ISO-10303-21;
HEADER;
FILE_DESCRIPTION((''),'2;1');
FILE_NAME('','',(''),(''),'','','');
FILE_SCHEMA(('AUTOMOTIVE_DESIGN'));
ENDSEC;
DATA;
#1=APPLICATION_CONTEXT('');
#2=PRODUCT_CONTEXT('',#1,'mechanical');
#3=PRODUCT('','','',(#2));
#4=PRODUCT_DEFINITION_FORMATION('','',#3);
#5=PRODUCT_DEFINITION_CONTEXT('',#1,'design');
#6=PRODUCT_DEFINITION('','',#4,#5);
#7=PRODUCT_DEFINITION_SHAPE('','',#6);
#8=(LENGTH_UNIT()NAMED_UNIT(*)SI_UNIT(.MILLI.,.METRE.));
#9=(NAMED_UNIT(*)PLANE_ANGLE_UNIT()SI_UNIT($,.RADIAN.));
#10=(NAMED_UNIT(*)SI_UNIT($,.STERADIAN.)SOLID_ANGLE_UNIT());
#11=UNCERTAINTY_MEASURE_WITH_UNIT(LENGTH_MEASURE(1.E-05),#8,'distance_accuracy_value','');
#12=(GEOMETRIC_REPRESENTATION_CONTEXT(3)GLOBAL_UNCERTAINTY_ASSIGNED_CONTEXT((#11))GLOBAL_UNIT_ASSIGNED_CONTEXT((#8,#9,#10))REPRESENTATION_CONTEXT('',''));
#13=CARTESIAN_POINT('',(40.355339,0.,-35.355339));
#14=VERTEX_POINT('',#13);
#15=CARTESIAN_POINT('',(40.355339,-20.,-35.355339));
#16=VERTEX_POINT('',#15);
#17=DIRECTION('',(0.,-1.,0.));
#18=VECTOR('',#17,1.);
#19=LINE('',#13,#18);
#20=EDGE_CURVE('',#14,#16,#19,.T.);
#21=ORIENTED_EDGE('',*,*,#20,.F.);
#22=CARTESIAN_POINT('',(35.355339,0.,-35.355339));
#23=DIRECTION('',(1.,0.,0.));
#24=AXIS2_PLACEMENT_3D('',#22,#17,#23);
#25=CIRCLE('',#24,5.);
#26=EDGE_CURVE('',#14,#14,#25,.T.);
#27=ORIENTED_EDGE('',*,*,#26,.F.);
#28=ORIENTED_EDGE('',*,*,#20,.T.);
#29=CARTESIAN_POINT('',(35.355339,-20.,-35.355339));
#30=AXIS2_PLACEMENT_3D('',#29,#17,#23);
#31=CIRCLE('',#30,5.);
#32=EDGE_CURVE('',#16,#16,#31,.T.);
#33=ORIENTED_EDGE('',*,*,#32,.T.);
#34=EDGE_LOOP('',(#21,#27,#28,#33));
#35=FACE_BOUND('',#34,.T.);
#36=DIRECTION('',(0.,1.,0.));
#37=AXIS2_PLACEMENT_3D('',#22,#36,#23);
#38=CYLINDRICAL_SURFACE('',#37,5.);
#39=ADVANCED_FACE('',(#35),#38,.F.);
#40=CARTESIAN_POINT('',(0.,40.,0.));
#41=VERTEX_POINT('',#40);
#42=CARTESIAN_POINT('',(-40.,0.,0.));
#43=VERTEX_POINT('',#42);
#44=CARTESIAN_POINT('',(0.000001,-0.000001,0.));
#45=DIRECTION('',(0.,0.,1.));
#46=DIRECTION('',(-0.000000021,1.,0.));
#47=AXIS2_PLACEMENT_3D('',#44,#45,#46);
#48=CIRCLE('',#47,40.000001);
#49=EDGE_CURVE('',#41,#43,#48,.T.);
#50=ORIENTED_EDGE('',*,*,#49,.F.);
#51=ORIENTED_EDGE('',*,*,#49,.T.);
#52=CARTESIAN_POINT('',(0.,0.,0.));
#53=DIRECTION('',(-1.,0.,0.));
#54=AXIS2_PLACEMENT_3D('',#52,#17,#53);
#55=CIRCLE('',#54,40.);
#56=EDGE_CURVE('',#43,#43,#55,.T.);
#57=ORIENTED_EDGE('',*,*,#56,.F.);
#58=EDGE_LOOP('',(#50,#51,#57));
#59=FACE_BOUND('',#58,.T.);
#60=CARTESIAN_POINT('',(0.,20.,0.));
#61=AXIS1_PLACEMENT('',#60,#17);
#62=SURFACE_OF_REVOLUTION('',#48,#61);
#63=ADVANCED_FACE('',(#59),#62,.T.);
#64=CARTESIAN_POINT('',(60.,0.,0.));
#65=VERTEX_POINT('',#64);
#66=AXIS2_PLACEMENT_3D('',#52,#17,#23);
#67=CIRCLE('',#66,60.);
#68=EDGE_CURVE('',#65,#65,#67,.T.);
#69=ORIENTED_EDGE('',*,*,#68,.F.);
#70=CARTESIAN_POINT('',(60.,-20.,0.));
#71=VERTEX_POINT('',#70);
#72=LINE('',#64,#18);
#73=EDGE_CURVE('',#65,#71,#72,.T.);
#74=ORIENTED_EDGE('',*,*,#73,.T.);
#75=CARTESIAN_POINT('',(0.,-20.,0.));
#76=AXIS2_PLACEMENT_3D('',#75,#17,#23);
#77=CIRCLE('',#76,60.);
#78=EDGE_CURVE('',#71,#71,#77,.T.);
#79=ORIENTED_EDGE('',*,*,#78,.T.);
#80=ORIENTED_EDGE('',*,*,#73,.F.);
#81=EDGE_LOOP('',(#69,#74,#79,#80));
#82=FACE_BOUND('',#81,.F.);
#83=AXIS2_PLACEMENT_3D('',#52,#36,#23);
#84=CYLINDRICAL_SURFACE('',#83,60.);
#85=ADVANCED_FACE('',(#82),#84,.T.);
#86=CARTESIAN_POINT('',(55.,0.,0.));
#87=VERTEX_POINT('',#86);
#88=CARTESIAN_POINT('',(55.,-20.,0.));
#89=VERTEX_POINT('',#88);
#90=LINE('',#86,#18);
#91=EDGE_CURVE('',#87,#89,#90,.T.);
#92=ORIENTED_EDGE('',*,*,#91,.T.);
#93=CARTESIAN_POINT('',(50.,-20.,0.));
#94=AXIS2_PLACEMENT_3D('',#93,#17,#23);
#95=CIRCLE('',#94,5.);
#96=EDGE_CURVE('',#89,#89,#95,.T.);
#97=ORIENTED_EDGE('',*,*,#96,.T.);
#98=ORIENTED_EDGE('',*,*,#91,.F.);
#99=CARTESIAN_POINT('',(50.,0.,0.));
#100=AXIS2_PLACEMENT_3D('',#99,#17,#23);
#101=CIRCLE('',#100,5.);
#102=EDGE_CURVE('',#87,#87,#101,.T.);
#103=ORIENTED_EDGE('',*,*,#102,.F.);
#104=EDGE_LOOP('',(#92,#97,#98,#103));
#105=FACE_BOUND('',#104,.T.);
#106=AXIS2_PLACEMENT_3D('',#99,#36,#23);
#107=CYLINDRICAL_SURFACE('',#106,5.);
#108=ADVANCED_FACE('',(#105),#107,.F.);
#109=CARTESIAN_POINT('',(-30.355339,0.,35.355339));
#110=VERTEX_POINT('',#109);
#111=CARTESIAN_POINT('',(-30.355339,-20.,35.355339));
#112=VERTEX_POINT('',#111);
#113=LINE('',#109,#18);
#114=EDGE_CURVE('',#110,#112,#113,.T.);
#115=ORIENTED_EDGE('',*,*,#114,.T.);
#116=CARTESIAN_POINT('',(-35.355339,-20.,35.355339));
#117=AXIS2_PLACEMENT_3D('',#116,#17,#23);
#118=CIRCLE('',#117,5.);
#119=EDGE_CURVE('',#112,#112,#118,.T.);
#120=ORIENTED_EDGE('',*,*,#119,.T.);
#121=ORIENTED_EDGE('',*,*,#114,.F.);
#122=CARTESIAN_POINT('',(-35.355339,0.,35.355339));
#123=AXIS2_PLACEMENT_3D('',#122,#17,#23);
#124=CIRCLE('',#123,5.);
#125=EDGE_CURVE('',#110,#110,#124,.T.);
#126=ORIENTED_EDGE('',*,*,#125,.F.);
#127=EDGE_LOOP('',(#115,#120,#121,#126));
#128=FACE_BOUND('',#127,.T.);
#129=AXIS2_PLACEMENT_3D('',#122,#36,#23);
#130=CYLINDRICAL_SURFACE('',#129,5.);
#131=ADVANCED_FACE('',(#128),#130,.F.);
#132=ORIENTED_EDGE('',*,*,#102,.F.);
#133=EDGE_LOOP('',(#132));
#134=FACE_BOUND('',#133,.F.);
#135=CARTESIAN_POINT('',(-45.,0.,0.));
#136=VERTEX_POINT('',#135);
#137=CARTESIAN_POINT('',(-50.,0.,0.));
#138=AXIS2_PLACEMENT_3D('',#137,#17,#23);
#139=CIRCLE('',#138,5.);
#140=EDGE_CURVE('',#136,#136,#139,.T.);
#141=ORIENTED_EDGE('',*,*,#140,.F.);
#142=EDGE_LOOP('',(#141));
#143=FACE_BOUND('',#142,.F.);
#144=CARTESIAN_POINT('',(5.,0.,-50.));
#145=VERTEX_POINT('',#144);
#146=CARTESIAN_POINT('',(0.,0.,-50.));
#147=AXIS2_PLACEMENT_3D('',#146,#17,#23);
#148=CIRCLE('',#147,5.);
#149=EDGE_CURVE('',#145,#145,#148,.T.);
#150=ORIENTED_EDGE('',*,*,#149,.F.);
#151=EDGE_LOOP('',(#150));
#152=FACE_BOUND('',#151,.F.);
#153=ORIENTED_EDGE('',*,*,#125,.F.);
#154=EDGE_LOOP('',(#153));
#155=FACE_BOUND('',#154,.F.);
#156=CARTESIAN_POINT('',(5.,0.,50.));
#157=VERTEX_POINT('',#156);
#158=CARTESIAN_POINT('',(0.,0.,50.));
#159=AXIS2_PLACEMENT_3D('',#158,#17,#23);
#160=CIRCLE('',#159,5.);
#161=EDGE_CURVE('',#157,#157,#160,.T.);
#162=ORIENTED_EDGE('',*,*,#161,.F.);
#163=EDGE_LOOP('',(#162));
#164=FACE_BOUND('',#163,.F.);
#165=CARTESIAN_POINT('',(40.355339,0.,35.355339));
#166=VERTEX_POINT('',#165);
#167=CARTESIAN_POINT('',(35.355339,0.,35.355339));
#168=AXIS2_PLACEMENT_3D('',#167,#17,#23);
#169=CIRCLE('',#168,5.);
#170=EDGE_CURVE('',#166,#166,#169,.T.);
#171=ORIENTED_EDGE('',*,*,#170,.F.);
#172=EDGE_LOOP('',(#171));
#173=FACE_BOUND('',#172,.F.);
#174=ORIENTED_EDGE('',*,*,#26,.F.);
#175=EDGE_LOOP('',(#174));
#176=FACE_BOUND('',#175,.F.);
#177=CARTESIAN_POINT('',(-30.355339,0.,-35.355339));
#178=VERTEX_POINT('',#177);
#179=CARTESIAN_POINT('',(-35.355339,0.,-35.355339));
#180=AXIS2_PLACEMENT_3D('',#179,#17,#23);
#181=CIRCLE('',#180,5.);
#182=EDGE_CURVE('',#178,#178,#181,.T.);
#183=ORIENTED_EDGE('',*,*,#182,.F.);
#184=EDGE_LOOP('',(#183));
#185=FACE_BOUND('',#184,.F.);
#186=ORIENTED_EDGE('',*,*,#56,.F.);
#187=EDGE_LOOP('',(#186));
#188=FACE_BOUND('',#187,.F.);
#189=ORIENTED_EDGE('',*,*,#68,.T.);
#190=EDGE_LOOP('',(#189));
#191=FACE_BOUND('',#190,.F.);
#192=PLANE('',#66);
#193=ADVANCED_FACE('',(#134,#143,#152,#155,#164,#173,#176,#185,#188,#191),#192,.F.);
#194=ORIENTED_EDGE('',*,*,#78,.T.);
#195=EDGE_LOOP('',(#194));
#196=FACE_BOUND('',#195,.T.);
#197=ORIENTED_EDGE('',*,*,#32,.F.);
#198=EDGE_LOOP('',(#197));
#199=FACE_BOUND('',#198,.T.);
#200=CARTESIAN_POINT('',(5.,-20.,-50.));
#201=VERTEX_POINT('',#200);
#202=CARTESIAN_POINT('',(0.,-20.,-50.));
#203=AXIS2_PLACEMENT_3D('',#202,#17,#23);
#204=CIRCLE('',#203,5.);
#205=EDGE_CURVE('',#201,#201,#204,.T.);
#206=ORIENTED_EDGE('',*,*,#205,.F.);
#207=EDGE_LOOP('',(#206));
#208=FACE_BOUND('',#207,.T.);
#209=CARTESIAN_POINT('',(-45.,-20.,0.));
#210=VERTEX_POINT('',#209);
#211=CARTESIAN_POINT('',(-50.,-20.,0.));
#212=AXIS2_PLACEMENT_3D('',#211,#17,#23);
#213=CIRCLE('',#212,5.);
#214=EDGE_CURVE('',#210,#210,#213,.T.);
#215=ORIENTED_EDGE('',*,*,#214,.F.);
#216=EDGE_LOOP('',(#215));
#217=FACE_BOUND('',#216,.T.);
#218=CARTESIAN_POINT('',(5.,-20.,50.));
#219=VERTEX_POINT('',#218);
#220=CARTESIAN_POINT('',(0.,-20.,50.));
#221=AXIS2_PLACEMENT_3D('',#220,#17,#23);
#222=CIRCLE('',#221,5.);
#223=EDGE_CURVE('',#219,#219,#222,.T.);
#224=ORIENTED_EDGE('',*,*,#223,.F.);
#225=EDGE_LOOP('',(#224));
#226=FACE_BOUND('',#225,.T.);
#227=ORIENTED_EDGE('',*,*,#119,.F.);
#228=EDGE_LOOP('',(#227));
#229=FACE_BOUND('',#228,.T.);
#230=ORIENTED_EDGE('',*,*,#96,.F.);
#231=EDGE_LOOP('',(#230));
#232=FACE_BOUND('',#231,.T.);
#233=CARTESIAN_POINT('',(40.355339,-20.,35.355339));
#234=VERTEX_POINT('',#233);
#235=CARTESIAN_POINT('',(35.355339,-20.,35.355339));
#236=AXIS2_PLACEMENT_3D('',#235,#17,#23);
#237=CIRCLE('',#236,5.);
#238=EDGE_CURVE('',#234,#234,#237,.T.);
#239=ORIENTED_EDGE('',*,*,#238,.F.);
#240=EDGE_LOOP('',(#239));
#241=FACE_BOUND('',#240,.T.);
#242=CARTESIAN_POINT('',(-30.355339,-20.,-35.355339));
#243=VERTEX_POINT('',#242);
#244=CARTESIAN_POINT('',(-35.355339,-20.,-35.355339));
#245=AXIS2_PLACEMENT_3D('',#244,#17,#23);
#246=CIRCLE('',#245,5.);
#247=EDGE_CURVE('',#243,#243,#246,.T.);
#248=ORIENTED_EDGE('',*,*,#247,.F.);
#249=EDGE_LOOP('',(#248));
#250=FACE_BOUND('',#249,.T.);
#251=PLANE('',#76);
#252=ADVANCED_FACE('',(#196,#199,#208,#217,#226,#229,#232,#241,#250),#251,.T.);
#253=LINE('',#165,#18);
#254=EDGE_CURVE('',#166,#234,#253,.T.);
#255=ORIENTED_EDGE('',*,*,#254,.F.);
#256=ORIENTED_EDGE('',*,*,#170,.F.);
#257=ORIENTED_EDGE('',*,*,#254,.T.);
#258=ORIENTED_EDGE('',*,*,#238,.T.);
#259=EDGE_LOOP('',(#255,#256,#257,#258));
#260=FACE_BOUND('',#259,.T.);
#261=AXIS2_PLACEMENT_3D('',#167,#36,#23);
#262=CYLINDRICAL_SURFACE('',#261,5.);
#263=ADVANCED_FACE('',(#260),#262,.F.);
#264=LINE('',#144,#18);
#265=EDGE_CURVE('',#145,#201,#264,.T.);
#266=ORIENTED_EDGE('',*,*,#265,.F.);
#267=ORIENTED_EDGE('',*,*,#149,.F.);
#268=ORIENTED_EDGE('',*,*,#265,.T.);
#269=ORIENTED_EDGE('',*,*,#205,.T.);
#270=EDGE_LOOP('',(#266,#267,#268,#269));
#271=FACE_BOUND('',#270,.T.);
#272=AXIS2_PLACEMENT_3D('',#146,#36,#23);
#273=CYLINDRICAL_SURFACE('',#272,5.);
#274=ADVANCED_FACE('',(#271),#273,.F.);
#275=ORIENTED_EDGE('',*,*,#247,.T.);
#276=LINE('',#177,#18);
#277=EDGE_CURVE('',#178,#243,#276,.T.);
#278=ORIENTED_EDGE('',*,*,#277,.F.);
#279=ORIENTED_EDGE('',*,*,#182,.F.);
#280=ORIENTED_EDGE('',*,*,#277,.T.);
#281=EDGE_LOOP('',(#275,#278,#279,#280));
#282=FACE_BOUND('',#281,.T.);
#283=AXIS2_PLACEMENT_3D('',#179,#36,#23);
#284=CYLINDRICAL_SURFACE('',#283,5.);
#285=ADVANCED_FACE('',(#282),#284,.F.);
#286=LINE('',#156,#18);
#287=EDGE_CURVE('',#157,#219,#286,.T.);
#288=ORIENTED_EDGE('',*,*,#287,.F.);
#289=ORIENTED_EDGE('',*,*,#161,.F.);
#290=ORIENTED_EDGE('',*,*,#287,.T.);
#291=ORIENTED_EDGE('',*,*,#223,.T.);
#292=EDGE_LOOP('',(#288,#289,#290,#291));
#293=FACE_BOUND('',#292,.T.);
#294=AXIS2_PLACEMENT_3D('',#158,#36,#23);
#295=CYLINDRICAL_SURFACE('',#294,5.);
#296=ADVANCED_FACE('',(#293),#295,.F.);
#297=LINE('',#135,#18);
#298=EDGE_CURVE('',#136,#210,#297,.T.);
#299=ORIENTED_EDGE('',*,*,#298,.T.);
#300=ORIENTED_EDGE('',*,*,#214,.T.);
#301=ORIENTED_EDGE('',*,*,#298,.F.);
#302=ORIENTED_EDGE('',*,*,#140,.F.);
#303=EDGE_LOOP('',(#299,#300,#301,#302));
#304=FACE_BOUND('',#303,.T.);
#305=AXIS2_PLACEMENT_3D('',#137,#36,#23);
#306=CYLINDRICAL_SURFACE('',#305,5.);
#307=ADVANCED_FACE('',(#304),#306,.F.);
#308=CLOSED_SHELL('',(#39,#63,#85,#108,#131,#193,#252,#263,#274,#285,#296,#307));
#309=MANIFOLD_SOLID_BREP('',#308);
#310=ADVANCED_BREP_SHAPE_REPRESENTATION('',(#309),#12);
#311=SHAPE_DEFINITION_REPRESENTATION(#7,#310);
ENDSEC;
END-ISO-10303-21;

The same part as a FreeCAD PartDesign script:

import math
import FreeCAD as App
import Part
import Sketcher
Q = App.Units.Quantity

doc = App.newDocument("Part")
body = doc.addObject("PartDesign::Body", "Body")

# Sketch on XZ plane
sketch1 = body.newObject("Sketcher::SketchObject", "Sketch")
sketch1.AttachmentSupport = (doc.getObject("XZ_Plane"), [""])
sketch1.MapMode = "FlatFace"
sketch1.addGeometry(Part.Circle(App.Vector(0, 0, 0), App.Vector(0, 0, 1), 60), False)
sketch1.addGeometry(Part.Circle(App.Vector(-35, -35, 0), App.Vector(0, 0, 1), 5), False)
sketch1.addGeometry(Part.Circle(App.Vector(0, -50, 0), App.Vector(0, 0, 1), 5), False)
sketch1.addGeometry(Part.Circle(App.Vector(35, -35, 0), App.Vector(0, 0, 1), 5), False)
sketch1.addGeometry(Part.Circle(App.Vector(-50, 0, 0), App.Vector(0, 0, 1), 5), False)
sketch1.addGeometry(Part.Circle(App.Vector(-35, 35, 0), App.Vector(0, 0, 1), 5), False)
sketch1.addGeometry(Part.Circle(App.Vector(50, 0, 0), App.Vector(0, 0, 1), 5), False)
sketch1.addGeometry(Part.Circle(App.Vector(0, 50, 0), App.Vector(0, 0, 1), 5), False)
sketch1.addGeometry(Part.Circle(App.Vector(35, 35, 0), App.Vector(0, 0, 1), 5), False)
sketch1.addConstraint(Sketcher.Constraint("Coincident", 0, 3, -1, 1))
sketch1.addConstraint(Sketcher.Constraint("Equal", 1, 2))
sketch1.addConstraint(Sketcher.Constraint("Equal", 2, 3))
sketch1.addConstraint(Sketcher.Constraint("Equal", 3, 4))
sketch1.addConstraint(Sketcher.Constraint("Equal", 4, 5))
sketch1.addConstraint(Sketcher.Constraint("Equal", 5, 6))
sketch1.addConstraint(Sketcher.Constraint("Equal", 6, 7))
sketch1.addConstraint(Sketcher.Constraint("Equal", 7, 8))
sketch1.addConstraint(Sketcher.Constraint("Symmetric", 3, 3, 5, 3, -1, 1))
sketch1.addConstraint(Sketcher.Constraint("Symmetric", 4, 3, 6, 3, -1, 1))
sketch1.addConstraint(Sketcher.Constraint("Symmetric", 2, 3, 7, 3, -1, 1))
sketch1.addConstraint(Sketcher.Constraint("Symmetric", 1, 3, 8, 3, -1, 1))
sketch1.addConstraint(Sketcher.Constraint("Symmetric", 1, 3, 3, 3, -2))
sketch1.addConstraint(Sketcher.Constraint("PointOnObject", 2, 3, -2))
sketch1.addConstraint(Sketcher.Constraint("PointOnObject", 4, 3, -1))
sketch1.addConstraint(Sketcher.Constraint("Diameter", 0, Q("120 mm")))
sketch1.addConstraint(Sketcher.Constraint("Diameter", 1, Q("10 mm")))
sketch1.addConstraint(Sketcher.Constraint("DistanceY", 2, 3, -1, 1, Q("50 mm")))
sketch1.addConstraint(Sketcher.Constraint("DistanceX", 4, 3, -1, 1, Q("50 mm")))
sketch1.addConstraint(Sketcher.Constraint("DistanceX", 1, 3, -1, 1, Q("35.355339 mm")))
sketch1.addConstraint(Sketcher.Constraint("DistanceY", 1, 3, -1, 1, Q("35.355339 mm")))
pad1 = body.newObject("PartDesign::Pad", "Pad")
pad1.Profile = sketch1
pad1.Length = 20

# Sketch on XY plane
sketch2 = body.newObject("Sketcher::SketchObject", "Sketch001")
sketch2.AttachmentSupport = (doc.getObject("XY_Plane"), [""])
sketch2.MapMode = "FlatFace"
sketch2.addGeometry(Part.LineSegment(App.Vector(-40, 0, 0), App.Vector(0, 0, 0)), False)
sketch2.addGeometry(Part.LineSegment(App.Vector(0, 0, 0), App.Vector(0, 40, 0)), False)
sketch2.addGeometry(Part.ArcOfCircle(Part.Circle(App.Vector(0, 0, 0), App.Vector(0, 0, 1), 40), math.radians(90), math.radians(180)), False)
sketch2.addConstraint(Sketcher.Constraint("Coincident", 0, 2, 1, 1))
sketch2.addConstraint(Sketcher.Constraint("Coincident", 1, 2, 2, 1))
sketch2.addConstraint(Sketcher.Constraint("Coincident", 2, 2, 0, 1))
sketch2.addConstraint(Sketcher.Constraint("Horizontal", 0))
sketch2.addConstraint(Sketcher.Constraint("Vertical", 1))
sketch2.addConstraint(Sketcher.Constraint("Coincident", 2, 3, -1, 1))
sketch2.addConstraint(Sketcher.Constraint("Coincident", 0, 2, -1, 1))
sketch2.addConstraint(Sketcher.Constraint("Radius", 2, Q("40.000001 mm")))
revolution = body.newObject("PartDesign::Revolution", "Revolution")
revolution.Profile = sketch2
revolution.ReferenceAxis = (sketch2, ["V_Axis"])
revolution.Angle = 360

doc.recompute()
